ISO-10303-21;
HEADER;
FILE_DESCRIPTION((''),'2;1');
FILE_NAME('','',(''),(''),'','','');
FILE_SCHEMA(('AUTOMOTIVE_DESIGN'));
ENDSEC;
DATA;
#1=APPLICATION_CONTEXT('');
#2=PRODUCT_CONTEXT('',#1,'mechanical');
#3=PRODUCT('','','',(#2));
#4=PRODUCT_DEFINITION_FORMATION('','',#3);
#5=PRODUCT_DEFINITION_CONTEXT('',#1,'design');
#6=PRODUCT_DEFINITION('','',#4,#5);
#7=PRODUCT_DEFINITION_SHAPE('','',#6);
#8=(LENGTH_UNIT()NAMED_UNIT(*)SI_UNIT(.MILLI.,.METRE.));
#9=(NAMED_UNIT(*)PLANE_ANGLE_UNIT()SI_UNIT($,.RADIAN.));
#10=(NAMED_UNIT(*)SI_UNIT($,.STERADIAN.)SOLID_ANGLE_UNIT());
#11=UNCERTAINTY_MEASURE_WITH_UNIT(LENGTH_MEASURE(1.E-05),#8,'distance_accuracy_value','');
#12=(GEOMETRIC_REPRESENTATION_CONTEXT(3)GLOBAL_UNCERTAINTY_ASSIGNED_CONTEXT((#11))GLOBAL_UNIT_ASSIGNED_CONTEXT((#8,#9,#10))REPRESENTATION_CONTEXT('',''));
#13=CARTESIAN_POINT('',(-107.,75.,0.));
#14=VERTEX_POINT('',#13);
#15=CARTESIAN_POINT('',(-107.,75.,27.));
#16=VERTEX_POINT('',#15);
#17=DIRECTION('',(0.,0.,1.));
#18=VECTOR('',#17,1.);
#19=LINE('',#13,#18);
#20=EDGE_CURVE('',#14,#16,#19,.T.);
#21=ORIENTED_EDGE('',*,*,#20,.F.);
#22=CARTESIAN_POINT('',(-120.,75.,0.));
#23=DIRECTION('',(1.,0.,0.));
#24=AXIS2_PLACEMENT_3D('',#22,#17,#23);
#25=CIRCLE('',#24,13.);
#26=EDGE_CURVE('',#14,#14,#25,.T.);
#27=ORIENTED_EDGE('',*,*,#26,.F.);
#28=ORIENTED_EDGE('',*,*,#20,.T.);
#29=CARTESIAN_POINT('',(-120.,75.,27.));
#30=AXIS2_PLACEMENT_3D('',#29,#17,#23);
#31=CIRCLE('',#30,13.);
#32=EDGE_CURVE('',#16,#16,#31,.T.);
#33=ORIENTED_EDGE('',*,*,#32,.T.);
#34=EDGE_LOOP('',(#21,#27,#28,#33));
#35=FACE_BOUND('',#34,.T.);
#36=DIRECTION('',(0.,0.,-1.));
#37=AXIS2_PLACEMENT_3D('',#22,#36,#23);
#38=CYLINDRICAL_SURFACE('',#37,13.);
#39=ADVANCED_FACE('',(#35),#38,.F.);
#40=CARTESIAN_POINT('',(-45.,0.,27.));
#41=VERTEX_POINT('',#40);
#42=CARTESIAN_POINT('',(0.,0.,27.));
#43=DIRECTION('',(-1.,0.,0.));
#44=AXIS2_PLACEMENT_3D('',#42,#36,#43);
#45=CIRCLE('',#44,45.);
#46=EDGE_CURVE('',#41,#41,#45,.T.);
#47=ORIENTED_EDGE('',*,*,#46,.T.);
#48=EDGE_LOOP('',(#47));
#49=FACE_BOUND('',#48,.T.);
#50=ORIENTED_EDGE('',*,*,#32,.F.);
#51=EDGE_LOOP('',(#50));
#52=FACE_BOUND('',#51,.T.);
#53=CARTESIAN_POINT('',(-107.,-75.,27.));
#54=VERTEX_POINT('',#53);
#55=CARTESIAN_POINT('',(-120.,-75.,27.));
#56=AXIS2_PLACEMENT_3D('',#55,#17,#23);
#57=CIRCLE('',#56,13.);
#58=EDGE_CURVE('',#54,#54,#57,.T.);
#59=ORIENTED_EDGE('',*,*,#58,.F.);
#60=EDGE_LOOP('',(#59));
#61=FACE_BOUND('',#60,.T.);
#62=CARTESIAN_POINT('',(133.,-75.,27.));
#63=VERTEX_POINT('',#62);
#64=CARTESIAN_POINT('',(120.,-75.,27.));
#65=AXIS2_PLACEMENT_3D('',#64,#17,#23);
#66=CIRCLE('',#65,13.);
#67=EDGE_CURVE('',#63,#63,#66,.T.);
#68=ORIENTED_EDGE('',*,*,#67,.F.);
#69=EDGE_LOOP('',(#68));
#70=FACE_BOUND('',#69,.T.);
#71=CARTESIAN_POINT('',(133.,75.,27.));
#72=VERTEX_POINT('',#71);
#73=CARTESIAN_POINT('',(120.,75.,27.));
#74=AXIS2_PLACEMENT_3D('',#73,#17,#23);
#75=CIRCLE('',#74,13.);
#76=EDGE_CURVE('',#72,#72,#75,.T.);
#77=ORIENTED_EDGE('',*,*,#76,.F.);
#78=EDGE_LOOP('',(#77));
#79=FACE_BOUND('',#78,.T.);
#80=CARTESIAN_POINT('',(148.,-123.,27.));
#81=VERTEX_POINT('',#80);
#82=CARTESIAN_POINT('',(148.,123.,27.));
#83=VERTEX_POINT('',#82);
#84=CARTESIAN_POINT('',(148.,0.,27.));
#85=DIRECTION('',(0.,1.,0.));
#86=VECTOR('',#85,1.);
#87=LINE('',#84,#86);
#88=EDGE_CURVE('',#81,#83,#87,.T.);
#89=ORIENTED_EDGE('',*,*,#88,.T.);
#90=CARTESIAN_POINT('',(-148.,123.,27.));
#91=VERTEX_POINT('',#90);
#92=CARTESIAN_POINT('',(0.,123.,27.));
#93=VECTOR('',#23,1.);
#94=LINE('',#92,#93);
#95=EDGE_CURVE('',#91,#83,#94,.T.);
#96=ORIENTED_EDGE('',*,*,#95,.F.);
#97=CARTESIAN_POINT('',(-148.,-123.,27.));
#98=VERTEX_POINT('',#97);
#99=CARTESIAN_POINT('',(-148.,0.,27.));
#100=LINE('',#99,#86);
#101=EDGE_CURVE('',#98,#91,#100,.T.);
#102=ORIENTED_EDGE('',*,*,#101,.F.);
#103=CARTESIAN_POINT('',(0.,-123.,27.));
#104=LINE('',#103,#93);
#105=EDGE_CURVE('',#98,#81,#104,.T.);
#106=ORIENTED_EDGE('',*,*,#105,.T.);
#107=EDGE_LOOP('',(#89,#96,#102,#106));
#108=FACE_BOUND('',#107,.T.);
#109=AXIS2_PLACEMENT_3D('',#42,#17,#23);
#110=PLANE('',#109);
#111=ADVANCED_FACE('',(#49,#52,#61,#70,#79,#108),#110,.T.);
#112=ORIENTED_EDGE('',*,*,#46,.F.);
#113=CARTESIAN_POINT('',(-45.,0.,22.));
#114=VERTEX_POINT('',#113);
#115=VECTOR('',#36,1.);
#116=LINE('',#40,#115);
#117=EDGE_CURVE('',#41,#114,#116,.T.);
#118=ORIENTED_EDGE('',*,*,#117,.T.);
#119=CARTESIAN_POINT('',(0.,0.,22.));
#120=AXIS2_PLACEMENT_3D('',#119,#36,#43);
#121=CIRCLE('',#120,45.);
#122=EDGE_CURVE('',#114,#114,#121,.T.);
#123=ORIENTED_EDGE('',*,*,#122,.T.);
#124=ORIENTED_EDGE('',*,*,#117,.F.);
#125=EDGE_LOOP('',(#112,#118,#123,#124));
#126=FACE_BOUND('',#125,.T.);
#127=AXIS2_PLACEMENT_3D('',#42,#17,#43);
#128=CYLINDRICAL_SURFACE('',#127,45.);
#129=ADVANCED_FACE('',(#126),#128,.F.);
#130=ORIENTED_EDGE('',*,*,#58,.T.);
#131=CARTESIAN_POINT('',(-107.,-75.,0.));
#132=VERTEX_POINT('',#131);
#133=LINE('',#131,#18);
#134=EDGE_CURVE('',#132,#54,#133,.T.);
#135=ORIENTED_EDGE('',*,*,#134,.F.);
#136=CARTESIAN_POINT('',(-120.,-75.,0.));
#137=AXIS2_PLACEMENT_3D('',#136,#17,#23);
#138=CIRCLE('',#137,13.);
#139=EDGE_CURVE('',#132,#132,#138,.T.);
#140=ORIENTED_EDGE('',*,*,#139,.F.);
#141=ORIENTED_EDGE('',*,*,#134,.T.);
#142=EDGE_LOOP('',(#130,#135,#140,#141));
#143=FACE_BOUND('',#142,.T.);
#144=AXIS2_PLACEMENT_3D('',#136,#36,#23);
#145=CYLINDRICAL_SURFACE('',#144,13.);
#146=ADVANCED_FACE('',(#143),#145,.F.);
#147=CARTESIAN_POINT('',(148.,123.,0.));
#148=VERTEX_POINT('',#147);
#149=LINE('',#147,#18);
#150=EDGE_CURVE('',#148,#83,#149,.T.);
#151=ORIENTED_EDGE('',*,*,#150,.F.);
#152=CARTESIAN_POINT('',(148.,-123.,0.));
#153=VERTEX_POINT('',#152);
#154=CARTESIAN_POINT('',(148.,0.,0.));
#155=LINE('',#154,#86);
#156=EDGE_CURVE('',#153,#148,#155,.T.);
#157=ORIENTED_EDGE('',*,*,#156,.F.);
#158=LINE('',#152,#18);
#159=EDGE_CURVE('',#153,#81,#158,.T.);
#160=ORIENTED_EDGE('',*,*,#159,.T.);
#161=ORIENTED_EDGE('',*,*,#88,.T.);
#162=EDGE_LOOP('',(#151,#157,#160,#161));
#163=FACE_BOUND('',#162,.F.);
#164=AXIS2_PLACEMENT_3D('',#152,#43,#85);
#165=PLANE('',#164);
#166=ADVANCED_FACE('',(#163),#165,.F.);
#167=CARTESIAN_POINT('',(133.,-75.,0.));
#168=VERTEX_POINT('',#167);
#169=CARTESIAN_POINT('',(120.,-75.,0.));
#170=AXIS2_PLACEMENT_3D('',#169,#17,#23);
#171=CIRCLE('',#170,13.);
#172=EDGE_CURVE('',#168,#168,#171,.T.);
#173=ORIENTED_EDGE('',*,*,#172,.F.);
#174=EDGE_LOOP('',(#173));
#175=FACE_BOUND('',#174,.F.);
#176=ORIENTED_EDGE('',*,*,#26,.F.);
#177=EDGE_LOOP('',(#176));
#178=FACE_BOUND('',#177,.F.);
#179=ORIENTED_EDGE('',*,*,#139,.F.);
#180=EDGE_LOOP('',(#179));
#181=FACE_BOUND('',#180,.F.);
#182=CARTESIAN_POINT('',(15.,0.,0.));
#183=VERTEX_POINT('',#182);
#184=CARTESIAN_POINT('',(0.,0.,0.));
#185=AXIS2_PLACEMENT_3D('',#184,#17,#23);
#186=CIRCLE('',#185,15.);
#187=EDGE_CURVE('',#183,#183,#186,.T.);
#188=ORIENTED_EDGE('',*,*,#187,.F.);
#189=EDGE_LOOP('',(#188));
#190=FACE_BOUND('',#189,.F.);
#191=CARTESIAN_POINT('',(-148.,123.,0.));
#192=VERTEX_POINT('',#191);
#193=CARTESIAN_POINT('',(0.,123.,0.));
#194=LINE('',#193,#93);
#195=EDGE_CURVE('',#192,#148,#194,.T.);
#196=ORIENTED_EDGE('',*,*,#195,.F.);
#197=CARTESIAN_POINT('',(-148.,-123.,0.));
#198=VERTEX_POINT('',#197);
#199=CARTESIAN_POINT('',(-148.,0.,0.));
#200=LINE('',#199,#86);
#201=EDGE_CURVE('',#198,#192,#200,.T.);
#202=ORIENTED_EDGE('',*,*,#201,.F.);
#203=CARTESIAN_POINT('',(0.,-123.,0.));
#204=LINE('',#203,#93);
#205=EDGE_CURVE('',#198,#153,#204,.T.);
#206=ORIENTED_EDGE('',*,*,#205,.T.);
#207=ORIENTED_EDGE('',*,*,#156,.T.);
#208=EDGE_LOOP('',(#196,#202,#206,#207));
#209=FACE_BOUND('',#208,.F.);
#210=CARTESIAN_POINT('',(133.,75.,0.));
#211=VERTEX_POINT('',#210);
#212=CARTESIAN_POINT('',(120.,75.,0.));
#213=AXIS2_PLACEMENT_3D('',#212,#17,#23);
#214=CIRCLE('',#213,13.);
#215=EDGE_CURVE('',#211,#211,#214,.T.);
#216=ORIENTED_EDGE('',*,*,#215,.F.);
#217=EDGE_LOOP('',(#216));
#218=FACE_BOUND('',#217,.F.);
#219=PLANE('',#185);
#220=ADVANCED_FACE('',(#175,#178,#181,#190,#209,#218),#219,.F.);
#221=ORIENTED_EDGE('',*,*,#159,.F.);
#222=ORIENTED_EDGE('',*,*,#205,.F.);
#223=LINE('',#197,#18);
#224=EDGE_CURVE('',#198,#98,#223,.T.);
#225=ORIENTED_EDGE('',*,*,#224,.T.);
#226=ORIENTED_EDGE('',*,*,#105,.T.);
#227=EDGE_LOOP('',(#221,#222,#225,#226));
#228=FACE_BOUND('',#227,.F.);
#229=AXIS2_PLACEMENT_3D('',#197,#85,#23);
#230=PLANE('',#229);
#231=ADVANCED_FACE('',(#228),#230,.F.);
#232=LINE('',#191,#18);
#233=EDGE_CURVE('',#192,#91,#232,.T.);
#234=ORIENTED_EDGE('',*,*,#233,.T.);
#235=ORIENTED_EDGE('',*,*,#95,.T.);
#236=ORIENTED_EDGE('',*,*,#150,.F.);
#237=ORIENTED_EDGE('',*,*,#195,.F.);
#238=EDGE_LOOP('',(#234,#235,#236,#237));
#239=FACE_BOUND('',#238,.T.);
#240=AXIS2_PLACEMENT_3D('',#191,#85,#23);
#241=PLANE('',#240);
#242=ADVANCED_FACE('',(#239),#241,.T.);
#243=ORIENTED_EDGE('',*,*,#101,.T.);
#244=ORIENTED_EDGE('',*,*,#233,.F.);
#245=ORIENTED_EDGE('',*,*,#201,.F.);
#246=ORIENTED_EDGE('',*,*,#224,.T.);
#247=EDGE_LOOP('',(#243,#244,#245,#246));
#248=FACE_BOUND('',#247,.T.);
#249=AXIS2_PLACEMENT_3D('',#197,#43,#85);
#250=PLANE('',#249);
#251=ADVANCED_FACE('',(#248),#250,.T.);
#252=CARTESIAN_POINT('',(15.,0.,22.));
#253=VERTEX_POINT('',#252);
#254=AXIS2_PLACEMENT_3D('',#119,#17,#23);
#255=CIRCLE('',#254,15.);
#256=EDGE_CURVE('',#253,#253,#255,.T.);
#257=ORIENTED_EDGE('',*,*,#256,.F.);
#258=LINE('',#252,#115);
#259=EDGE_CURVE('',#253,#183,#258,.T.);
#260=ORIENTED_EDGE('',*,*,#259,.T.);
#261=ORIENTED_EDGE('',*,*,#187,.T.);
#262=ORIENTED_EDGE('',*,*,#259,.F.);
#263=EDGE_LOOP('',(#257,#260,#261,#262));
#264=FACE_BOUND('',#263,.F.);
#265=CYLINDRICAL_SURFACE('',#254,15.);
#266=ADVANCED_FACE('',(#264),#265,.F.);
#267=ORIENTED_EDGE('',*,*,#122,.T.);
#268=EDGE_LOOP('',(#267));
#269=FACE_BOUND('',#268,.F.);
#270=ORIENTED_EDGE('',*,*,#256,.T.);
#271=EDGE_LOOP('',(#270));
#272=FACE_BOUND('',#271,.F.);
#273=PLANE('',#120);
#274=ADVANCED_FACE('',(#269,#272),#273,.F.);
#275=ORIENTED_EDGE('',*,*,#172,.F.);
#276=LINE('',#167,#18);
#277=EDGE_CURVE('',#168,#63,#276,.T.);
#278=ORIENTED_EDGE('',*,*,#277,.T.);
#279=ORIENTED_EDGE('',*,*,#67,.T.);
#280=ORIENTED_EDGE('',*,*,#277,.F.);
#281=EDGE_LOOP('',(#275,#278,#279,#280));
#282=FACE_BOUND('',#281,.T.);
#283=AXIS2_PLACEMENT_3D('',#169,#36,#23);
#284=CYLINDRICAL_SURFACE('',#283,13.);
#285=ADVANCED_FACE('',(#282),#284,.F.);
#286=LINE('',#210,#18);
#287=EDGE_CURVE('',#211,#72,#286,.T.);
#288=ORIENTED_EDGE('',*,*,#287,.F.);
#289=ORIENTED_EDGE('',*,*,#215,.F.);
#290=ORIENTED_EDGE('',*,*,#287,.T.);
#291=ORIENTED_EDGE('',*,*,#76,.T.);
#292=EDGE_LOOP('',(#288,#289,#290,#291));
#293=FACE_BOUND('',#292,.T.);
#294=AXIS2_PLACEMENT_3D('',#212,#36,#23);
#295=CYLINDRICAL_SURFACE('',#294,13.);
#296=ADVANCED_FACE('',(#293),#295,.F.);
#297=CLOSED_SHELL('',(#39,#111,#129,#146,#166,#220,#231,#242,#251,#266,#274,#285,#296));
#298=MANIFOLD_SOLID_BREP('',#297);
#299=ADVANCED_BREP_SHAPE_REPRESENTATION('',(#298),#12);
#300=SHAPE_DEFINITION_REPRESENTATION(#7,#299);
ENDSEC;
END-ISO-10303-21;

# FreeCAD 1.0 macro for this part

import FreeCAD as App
import Part
import Sketcher

doc = App.newDocument("Part")
body = doc.addObject("PartDesign::Body", "Body")

# Sketch on XY plane
sketch1 = body.newObject("Sketcher::SketchObject", "Sketch")
sketch1.AttachmentSupport = (doc.getObject("XY_Plane"), [""])
sketch1.MapMode = "FlatFace"
sketch1.addGeometry([
    Part.LineSegment(App.Vector(-148, 123, 0), App.Vector(-148, -123, 0)),  # 0
    Part.LineSegment(App.Vector(-148, -123, 0), App.Vector(148, -123, 0)),  # 1
    Part.LineSegment(App.Vector(148, -123, 0), App.Vector(148, 123, 0)),  # 2
    Part.LineSegment(App.Vector(148, 123, 0), App.Vector(-148, 123, 0)),  # 3
    Part.Circle(App.Vector(-120, -75, 0), App.Vector(0, 0, 1), 13),  # 4
    Part.Circle(App.Vector(120, -75, 0), App.Vector(0, 0, 1), 13),  # 5
    Part.Circle(App.Vector(-120, 75, 0), App.Vector(0, 0, 1), 13),  # 6
    Part.Circle(App.Vector(120, 75, 0), App.Vector(0, 0, 1), 13),  # 7
], False)
sketch1.addConstraint([
    Sketcher.Constraint("Coincident", 0, 2, 1, 1),
    Sketcher.Constraint("Coincident", 1, 2, 2, 1),
    Sketcher.Constraint("Coincident", 2, 2, 3, 1),
    Sketcher.Constraint("Coincident", 3, 2, 0, 1),
    Sketcher.Constraint("Vertical", 0),
    Sketcher.Constraint("Horizontal", 1),
    Sketcher.Constraint("Vertical", 2),
    Sketcher.Constraint("Horizontal", 3),
    Sketcher.Constraint("Equal", 4, 5),
    Sketcher.Constraint("Equal", 5, 6),
    Sketcher.Constraint("Equal", 6, 7),
    Sketcher.Constraint("Symmetric", 5, 3, 6, 3, -1, 1),
    Sketcher.Constraint("Symmetric", 4, 3, 7, 3, -1, 1),
    Sketcher.Constraint("Symmetric", 0, 2, 2, 2, -1, 1),
    Sketcher.Constraint("Symmetric", 4, 3, 5, 3, -2),
    Sketcher.Constraint("Diameter", 4, 26.0),
    Sketcher.Constraint("DistanceX", 1, 1, 1, 2, 296.0),
    Sketcher.Constraint("DistanceY", 0, 2, 0, 1, 246.0),
    Sketcher.Constraint("DistanceX", 4, 3, -1, 1, 120.0),
    Sketcher.Constraint("DistanceY", 4, 3, -1, 1, 75.0),
])
pad1 = body.newObject("PartDesign::Pad", "Pad")
pad1.Profile = sketch1
pad1.Length = 27

# Sketch on XY plane
sketch2 = body.newObject("Sketcher::SketchObject", "Sketch001")
sketch2.AttachmentSupport = (doc.getObject("XY_Plane"), [""])
sketch2.MapMode = "FlatFace"
sketch2.AttachmentOffset = App.Placement(App.Vector(0, 0, 27), App.Rotation())
sketch2.addGeometry(Part.Circle(App.Vector(0, 0, 0), App.Vector(0, 0, 1), 45), False)
sketch2.addConstraint([
    Sketcher.Constraint("Coincident", 0, 3, -1, 1),
    Sketcher.Constraint("Diameter", 0, 90.0),
])
pocket1 = body.newObject("PartDesign::Pocket", "Pocket")
pocket1.Profile = sketch2
pocket1.Length = 5

# Sketch on XY plane
sketch3 = body.newObject("Sketcher::SketchObject", "Sketch002")
sketch3.AttachmentSupport = (doc.getObject("XY_Plane"), [""])
sketch3.MapMode = "FlatFace"
sketch3.AttachmentOffset = App.Placement(App.Vector(0, 0, 22), App.Rotation())
sketch3.addGeometry(Part.Circle(App.Vector(0, 0, 0), App.Vector(0, 0, 1), 15), False)
sketch3.addConstraint([
    Sketcher.Constraint("Coincident", 0, 3, -1, 1),
    Sketcher.Constraint("Diameter", 0, 30.0),
])
pocket2 = body.newObject("PartDesign::Pocket", "Pocket001")
pocket2.Profile = sketch3
pocket2.Type = "ThroughAll"

doc.recompute()
